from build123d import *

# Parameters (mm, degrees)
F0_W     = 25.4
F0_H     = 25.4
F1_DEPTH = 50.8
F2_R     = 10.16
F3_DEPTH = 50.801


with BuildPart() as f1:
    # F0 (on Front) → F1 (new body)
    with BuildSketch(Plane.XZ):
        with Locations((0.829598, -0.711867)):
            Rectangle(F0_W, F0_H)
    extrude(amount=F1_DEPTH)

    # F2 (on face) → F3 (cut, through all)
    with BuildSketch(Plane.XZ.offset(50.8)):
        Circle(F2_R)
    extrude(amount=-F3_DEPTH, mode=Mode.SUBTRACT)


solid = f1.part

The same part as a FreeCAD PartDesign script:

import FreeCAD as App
import Part
import Sketcher

V = App.Vector
Q = App.Units.Quantity

doc = App.newDocument("Part")
body = doc.addObject("PartDesign::Body", "Body")

sketch1 = doc.addObject("Sketcher::SketchObject", "Sketch")
body.addObject(sketch1)
sketch1.AttachmentSupport = (doc.XZ_Plane, [""])
sketch1.MapMode = "FlatFace"
sketch1.addGeometry([
    Part.LineSegment(V(-12, 12, 0), V(-12, -13, 0)),
    Part.LineSegment(V(-12, -13, 0), V(14, -13, 0)),
    Part.LineSegment(V(14, -13, 0), V(14, 12, 0)),
    Part.LineSegment(V(14, 12, 0), V(-12, 12, 0)),
], False)
sketch1.addConstraint([
    Sketcher.Constraint("Coincident", 0, 2, 1, 1),
    Sketcher.Constraint("Coincident", 1, 2, 2, 1),
    Sketcher.Constraint("Coincident", 2, 2, 3, 1),
    Sketcher.Constraint("Coincident", 3, 2, 0, 1),
    Sketcher.Constraint("Vertical", 0),
    Sketcher.Constraint("Horizontal", 1),
    Sketcher.Constraint("Vertical", 2),
    Sketcher.Constraint("Horizontal", 3),
    Sketcher.Constraint("Equal", 3, 0),
    Sketcher.Constraint("DistanceX", 1, 1, 1, 2, Q("1 in")),
    Sketcher.Constraint("DistanceX", 0, 2, -1, 1, 11.870402),
    Sketcher.Constraint("DistanceY", 0, 2, -1, 1, 13.411867),
])
pad1 = doc.addObject("PartDesign::Pad", "Pad")
body.addObject(pad1)
pad1.Profile = sketch1
pad1.Length = Q("2 in")

sketch2 = doc.addObject("Sketcher::SketchObject", "Sketch001")
body.addObject(sketch2)
sketch2.AttachmentSupport = (doc.XZ_Plane, [""])
sketch2.MapMode = "FlatFace"
sketch2.AttachmentOffset = App.Placement(V(0, 0, 2 * 25.4), App.Rotation())
sketch2.addGeometry(Part.Circle(V(0, 0, 0), V(0, 0, 1), 10), False)
sketch2.addConstraint([
    Sketcher.Constraint("Coincident", 0, 3, -1, 1),
    Sketcher.Constraint("Diameter", 0, Q("0.8 in")),
])
pocket1 = doc.addObject("PartDesign::Pocket", "Pocket")
body.addObject(pocket1)
pocket1.Profile = sketch2
pocket1.Type = "ThroughAll"

doc.recompute()
